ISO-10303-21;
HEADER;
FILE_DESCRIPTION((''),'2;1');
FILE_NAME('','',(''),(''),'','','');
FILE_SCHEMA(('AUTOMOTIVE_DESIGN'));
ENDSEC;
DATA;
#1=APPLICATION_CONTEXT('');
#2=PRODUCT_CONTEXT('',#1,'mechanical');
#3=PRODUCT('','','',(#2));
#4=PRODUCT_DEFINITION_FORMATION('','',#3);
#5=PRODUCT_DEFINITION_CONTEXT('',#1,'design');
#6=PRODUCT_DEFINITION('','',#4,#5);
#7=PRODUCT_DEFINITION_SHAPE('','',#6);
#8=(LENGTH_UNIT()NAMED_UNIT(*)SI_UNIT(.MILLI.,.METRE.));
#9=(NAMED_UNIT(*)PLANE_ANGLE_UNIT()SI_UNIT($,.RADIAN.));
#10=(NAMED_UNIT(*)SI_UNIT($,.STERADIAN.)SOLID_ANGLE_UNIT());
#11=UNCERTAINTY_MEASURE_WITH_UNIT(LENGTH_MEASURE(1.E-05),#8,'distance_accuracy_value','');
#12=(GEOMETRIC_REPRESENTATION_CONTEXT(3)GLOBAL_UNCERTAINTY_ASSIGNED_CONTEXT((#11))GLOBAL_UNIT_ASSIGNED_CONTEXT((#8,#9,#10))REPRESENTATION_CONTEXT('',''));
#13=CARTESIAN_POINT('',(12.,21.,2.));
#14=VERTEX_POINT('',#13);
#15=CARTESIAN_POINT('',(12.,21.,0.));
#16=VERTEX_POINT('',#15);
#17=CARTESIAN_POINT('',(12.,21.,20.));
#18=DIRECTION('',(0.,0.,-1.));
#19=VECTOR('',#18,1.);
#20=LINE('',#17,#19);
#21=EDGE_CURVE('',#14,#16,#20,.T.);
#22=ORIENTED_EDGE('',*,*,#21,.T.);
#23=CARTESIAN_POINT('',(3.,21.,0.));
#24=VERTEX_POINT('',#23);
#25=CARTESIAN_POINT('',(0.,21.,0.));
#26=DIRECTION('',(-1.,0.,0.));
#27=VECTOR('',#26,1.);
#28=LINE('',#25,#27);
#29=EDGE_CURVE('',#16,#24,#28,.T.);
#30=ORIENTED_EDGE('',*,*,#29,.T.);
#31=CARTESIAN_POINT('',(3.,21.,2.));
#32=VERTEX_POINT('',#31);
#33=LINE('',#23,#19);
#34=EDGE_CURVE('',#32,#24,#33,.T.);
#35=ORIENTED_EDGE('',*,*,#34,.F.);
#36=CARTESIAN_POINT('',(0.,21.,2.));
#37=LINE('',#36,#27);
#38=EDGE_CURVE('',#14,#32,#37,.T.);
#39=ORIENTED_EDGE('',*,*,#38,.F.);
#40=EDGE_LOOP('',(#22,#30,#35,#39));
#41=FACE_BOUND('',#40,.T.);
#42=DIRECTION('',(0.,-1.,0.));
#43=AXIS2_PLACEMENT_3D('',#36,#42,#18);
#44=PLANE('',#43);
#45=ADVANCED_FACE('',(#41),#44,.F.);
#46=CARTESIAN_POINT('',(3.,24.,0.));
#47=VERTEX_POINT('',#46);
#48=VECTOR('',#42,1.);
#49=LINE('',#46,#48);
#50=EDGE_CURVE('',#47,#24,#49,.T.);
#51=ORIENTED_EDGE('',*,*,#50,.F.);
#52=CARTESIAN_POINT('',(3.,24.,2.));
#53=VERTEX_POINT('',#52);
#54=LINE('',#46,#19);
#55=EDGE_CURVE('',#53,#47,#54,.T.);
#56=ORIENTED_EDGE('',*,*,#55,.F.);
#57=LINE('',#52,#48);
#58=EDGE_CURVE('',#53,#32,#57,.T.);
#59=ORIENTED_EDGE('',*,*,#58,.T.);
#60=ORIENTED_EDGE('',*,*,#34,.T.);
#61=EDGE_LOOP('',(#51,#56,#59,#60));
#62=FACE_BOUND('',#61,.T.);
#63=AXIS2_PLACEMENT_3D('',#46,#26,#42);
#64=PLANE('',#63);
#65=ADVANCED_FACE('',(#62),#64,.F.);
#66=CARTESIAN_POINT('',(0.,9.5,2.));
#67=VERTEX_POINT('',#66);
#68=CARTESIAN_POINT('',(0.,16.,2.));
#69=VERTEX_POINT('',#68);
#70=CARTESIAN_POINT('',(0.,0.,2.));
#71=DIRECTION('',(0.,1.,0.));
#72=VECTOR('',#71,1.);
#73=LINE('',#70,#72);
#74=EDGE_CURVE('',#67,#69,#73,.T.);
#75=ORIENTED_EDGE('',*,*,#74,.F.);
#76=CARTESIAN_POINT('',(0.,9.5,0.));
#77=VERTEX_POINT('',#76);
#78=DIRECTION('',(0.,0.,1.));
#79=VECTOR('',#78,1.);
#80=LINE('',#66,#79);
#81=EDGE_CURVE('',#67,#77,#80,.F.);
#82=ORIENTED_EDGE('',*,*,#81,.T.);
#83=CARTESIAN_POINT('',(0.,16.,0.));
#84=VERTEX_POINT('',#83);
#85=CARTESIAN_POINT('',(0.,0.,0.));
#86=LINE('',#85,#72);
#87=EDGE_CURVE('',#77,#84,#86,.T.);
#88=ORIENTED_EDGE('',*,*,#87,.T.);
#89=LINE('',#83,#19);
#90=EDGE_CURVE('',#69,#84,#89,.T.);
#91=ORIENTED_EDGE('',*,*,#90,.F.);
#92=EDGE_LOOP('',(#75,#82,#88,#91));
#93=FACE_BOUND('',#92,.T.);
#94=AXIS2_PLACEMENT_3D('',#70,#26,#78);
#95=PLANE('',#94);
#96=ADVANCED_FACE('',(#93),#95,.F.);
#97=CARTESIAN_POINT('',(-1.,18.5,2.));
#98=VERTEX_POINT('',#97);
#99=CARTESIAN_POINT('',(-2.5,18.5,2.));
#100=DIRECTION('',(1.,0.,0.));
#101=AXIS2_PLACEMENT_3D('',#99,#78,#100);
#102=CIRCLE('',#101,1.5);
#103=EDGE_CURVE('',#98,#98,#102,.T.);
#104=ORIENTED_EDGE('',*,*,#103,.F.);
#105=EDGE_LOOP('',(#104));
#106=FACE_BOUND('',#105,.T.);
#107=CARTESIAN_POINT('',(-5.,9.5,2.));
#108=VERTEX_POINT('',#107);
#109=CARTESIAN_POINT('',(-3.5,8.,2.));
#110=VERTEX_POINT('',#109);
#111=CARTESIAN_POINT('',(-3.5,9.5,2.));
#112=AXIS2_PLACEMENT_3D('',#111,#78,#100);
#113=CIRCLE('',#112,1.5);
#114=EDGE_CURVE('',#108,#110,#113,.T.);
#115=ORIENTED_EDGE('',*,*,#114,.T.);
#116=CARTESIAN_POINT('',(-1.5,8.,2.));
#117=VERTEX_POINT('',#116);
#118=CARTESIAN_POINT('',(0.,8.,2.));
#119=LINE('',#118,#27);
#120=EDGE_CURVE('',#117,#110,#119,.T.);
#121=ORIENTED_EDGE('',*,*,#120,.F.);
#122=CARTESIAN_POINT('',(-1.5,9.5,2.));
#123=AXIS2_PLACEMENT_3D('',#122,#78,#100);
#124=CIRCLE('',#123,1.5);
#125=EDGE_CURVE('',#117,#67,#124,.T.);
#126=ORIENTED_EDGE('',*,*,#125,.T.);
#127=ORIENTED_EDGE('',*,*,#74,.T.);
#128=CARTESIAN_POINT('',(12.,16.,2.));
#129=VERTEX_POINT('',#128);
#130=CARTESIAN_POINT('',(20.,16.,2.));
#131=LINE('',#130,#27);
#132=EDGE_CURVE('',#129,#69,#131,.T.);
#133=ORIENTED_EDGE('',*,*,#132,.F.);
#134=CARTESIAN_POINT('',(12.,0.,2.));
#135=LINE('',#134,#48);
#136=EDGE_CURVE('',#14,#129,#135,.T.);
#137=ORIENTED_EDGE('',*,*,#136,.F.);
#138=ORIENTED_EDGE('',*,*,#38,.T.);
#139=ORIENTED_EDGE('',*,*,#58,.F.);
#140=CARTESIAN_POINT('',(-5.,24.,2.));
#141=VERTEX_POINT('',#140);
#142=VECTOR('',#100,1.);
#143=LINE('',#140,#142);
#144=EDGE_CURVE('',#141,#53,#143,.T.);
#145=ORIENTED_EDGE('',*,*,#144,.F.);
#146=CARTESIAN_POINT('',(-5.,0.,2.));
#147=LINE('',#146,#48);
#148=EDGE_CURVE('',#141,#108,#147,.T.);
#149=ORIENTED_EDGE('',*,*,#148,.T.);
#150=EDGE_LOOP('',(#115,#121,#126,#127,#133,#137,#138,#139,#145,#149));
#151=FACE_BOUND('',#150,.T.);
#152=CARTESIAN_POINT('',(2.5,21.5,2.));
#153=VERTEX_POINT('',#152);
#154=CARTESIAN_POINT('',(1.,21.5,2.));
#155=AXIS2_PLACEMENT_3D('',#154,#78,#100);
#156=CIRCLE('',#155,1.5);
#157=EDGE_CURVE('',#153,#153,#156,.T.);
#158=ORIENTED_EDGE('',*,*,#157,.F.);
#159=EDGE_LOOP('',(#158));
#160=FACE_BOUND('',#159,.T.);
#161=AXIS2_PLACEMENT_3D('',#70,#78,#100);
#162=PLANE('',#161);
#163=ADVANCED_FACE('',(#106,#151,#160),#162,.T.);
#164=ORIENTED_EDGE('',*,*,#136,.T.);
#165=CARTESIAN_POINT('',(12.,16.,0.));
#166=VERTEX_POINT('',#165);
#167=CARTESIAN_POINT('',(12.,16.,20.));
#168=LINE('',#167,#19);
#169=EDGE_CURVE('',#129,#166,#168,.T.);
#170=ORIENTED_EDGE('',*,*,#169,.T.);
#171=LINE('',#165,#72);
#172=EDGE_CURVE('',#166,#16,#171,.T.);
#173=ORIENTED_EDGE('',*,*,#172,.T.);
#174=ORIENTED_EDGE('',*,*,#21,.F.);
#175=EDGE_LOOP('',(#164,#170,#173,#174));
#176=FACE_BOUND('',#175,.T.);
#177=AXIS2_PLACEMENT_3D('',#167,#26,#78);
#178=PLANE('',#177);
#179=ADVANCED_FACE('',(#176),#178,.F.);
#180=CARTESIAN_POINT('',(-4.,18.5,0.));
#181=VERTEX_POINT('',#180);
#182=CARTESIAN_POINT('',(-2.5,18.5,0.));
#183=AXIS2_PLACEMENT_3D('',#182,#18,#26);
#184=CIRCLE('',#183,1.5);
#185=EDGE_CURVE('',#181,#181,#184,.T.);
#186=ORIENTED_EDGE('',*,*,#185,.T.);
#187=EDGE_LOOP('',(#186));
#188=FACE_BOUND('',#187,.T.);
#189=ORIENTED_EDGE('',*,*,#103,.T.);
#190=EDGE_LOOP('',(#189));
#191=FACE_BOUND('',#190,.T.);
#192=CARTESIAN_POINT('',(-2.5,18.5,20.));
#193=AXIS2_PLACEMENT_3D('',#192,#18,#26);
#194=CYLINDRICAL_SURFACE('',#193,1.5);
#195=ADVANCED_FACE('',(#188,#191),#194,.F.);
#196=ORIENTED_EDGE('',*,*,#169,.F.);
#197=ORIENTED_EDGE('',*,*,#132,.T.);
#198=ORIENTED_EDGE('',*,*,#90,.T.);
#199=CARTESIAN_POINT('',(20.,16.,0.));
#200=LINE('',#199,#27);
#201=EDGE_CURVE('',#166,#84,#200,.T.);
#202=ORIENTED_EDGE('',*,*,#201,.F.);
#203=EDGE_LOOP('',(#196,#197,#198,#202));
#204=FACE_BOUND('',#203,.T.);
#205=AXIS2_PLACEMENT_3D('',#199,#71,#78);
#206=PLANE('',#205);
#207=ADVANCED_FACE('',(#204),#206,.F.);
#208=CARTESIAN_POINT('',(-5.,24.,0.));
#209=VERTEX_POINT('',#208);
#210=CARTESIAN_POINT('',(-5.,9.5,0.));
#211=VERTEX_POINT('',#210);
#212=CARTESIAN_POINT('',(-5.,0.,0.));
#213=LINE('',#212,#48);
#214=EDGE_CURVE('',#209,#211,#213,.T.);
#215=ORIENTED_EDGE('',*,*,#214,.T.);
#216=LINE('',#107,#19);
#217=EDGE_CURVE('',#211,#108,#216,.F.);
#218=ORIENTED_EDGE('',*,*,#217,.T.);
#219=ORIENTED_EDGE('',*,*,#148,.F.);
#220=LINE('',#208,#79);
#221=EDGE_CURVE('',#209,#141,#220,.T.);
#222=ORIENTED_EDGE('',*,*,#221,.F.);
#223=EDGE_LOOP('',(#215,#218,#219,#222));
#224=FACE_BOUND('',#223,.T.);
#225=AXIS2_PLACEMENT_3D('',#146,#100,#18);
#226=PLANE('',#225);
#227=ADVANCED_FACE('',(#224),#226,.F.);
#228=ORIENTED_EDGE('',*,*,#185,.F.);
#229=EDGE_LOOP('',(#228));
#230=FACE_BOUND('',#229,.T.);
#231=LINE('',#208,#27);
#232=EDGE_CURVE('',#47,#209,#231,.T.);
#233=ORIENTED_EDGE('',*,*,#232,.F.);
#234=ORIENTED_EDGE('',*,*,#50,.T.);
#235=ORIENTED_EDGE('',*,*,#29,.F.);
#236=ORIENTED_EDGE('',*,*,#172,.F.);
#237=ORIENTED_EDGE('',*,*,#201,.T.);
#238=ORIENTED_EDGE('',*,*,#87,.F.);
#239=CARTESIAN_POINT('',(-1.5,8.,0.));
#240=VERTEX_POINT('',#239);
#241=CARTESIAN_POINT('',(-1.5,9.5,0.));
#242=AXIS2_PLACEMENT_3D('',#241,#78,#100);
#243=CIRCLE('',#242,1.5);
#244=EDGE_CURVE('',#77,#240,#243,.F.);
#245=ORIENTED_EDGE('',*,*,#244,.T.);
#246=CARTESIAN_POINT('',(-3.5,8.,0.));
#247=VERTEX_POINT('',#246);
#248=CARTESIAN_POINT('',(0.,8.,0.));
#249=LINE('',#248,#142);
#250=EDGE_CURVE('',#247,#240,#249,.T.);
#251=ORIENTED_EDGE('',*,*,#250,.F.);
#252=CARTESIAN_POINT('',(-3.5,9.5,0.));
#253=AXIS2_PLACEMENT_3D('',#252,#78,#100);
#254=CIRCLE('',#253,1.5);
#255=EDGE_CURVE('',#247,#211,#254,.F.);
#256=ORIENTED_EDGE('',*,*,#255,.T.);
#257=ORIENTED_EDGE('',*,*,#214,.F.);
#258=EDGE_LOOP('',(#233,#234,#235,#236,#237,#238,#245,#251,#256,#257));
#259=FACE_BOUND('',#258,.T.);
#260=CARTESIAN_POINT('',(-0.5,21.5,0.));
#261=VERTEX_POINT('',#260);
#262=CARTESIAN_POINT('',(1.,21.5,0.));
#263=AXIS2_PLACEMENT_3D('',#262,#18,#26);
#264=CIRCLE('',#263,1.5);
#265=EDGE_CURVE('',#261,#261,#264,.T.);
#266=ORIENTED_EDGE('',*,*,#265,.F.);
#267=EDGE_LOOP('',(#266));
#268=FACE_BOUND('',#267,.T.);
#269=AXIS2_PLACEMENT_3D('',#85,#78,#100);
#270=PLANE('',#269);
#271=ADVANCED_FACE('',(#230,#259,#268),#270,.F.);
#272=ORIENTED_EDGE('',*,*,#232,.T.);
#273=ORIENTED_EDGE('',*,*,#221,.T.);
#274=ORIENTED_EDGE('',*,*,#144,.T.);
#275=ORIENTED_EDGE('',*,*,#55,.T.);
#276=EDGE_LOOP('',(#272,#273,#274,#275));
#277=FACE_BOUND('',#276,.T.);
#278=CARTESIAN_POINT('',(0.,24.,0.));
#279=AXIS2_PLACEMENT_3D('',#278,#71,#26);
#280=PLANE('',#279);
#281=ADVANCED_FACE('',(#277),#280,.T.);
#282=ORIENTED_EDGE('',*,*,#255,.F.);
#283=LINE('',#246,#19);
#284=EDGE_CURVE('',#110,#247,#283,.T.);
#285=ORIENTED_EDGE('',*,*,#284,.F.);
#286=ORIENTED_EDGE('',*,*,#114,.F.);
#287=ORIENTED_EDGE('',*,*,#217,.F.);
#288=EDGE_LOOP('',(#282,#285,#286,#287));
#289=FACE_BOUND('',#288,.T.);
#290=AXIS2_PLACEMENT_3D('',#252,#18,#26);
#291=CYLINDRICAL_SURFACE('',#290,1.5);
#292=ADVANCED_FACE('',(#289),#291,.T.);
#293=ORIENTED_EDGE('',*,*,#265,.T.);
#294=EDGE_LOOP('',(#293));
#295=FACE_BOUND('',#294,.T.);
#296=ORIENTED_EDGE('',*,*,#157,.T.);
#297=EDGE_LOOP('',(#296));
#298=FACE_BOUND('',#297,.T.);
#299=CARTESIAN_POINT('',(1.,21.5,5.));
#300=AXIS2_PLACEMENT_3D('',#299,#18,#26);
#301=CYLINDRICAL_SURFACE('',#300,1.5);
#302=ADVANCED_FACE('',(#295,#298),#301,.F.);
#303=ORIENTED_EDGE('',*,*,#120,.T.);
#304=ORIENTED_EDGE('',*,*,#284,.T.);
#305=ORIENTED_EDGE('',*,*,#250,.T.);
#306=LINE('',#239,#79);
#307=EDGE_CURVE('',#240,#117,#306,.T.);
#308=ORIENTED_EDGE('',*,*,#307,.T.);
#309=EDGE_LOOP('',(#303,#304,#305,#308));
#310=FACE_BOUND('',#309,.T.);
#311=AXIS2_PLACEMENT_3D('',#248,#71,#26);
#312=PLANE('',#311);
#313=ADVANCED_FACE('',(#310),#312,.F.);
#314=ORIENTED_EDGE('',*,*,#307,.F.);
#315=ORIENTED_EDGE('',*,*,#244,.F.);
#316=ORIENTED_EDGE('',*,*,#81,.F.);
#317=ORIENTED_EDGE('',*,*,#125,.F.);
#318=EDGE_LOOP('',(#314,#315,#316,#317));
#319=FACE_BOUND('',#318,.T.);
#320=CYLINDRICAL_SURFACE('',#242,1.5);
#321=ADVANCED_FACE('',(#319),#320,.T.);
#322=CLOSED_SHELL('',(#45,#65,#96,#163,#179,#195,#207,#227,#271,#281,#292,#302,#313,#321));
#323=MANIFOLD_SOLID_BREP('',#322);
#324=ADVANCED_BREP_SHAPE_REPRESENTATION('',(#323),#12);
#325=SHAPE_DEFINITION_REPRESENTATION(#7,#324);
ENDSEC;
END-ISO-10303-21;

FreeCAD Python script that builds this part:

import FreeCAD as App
import Part
import Sketcher

V = App.Vector


def edges_at(feature, points):
    """Names of the edges that pass closest to the given points."""
    edges = feature.Shape.Edges
    near = lambda p: min(range(len(edges)), key=lambda i: edges[i].distToShape(Part.Vertex(*p))[0])
    return sorted({f"Edge{near(p) + 1}" for p in points})


def add_polygon(sketch, points):
    """Adds a closed chain of lines whose ends are joined by coincident constraints."""
    first, n = sketch.GeometryCount, len(points)
    for a, b in zip(points, points[1:] + points[:1]):
        sketch.addGeometry(Part.LineSegment(App.Vector(*a, 0), App.Vector(*b, 0)), False)
    for i in range(n):
        sketch.addConstraint(Sketcher.Constraint("Coincident", first + i, 2, first + (i + 1) % n, 1))

doc = App.newDocument("Part")
body = doc.addObject("PartDesign::Body", "Body")

# Sketch on XY plane
sketch1 = body.newObject("Sketcher::SketchObject", "Sketch")
sketch1.AttachmentSupport = (doc.getObject("XY_Plane"), [""])
sketch1.MapMode = "FlatFace"
add_polygon(sketch1, [(-5, 21), (-5, 0), (0, 0), (0, 21)])  # lines 0-3
sketch1.addConstraint(Sketcher.Constraint("Vertical", 0))
sketch1.addConstraint(Sketcher.Constraint("Horizontal", 1))
sketch1.addConstraint(Sketcher.Constraint("Vertical", 2))
sketch1.addConstraint(Sketcher.Constraint("Horizontal", 3))
sketch1.addConstraint(Sketcher.Constraint("Coincident", 1, 2, -1, 1))
sketch1.addConstraint(Sketcher.Constraint("DistanceX", 1, 1, 1, 2, 5.0))
sketch1.addConstraint(Sketcher.Constraint("DistanceY", 0, 2, 0, 1, 21.0))
pad1 = body.newObject("PartDesign::Pad", "Pad")
pad1.Profile = sketch1
pad1.Length = 2

# Sketch on YZ plane
sketch2 = body.newObject("Sketcher::SketchObject", "Sketch001")
sketch2.AttachmentSupport = (doc.getObject("YZ_Plane"), [""])
sketch2.MapMode = "FlatFace"
add_polygon(sketch2, [(21, 2), (16, 2), (16, 0), (21, 0)])  # lines 0-3
sketch2.addConstraint(Sketcher.Constraint("Horizontal", 0))
sketch2.addConstraint(Sketcher.Constraint("Vertical", 1))
sketch2.addConstraint(Sketcher.Constraint("Horizontal", 2))
sketch2.addConstraint(Sketcher.Constraint("Vertical", 3))
sketch2.addConstraint(Sketcher.Constraint("PointOnObject", 1, 2, -1))
sketch2.addConstraint(Sketcher.Constraint("DistanceX", 0, 2, 0, 1, 5.0))
sketch2.addConstraint(Sketcher.Constraint("DistanceY", 1, 2, 1, 1, 2.0))
sketch2.addConstraint(Sketcher.Constraint("DistanceX", -1, 1, 0, 2, 16.0))
pad2 = body.newObject("PartDesign::Pad", "Pad001")
pad2.Profile = sketch2
pad2.Length = 20

# Sketch on XY plane
sketch3 = body.newObject("Sketcher::SketchObject", "Sketch002")
sketch3.AttachmentSupport = (doc.getObject("XY_Plane"), [""])
sketch3.MapMode = "FlatFace"
add_polygon(sketch3, [(20, 21), (20, 16), (12, 16), (12, 21)])  # lines 0-3
sketch3.addConstraint(Sketcher.Constraint("Vertical", 0))
sketch3.addConstraint(Sketcher.Constraint("Horizontal", 1))
sketch3.addConstraint(Sketcher.Constraint("Vertical", 2))
sketch3.addConstraint(Sketcher.Constraint("Horizontal", 3))
sketch3.addConstraint(Sketcher.Constraint("DistanceX", 1, 2, 1, 1, 8.0))
sketch3.addConstraint(Sketcher.Constraint("DistanceY", 0, 2, 0, 1, 5.0))
sketch3.addConstraint(Sketcher.Constraint("DistanceX", -1, 1, 0, 2, 20.0))
sketch3.addConstraint(Sketcher.Constraint("DistanceY", -1, 1, 0, 2, 16.0))
pocket1 = body.newObject("PartDesign::Pocket", "Pocket")
pocket1.Profile = sketch3
pocket1.Length = 20
pocket1.Reversed = True

# Sketch on XY plane
sketch4 = body.newObject("Sketcher::SketchObject", "Sketch003")
sketch4.AttachmentSupport = (doc.getObject("XY_Plane"), [""])
sketch4.MapMode = "FlatFace"
sketch4.addGeometry(Part.Circle(V(-2.5, 18.5, 0), V(0, 0, 1), 1.5), False)
sketch4.addConstraint(Sketcher.Constraint("Diameter", 0, 3.0))
sketch4.addConstraint(Sketcher.Constraint("DistanceX", 0, 3, -1, 1, 2.5))
sketch4.addConstraint(Sketcher.Constraint("DistanceY", -1, 1, 0, 3, 18.5))
pocket2 = body.newObject("PartDesign::Pocket", "Pocket001")
pocket2.Profile = sketch4
pocket2.Length = 20
pocket2.Reversed = True

# Sketch on XZ plane
sketch5 = body.newObject("Sketcher::SketchObject", "Sketch004")
sketch5.AttachmentSupport = (doc.getObject("XZ_Plane"), [""])
sketch5.MapMode = "FlatFace"
add_polygon(sketch5, [(-5, 2), (-5, 0), (0, 0), (0, 2)])  # lines 0-3
sketch5.addConstraint(Sketcher.Constraint("Vertical", 0))
sketch5.addConstraint(Sketcher.Constraint("Horizontal", 1))
sketch5.addConstraint(Sketcher.Constraint("Vertical", 2))
sketch5.addConstraint(Sketcher.Constraint("Horizontal", 3))
sketch5.addConstraint(Sketcher.Constraint("Coincident", 1, 2, -1, 1))
sketch5.addConstraint(Sketcher.Constraint("DistanceX", 1, 1, 1, 2, 5.0))
sketch5.addConstraint(Sketcher.Constraint("DistanceY", 0, 2, 0, 1, 2.0))
pocket3 = body.newObject("PartDesign::Pocket", "Pocket002")
pocket3.Profile = sketch5
pocket3.Length = 8
doc.recompute()

fillet = body.newObject("PartDesign::Fillet", "Fillet")
fillet.Base = (pocket3, edges_at(pocket3, [(0, 8, 1), (-5, 8, 1)]))
fillet.Radius = 1.5

# Sketch on XZ plane
sketch6 = body.newObject("Sketcher::SketchObject", "Sketch005")
sketch6.AttachmentSupport = (doc.getObject("XZ_Plane"), [""])
sketch6.MapMode = "FlatFace"
sketch6.AttachmentOffset = App.Placement(V(0, 0, -21), App.Rotation())
add_polygon(sketch6, [(-5, 0), (-5, 2), (3, 2), (3, 0)])  # lines 0-3
sketch6.addConstraint(Sketcher.Constraint("Vertical", 0))
sketch6.addConstraint(Sketcher.Constraint("Horizontal", 1))
sketch6.addConstraint(Sketcher.Constraint("Vertical", 2))
sketch6.addConstraint(Sketcher.Constraint("Horizontal", 3))
sketch6.addConstraint(Sketcher.Constraint("PointOnObject", 2, 2, -1))
sketch6.addConstraint(Sketcher.Constraint("DistanceX", 1, 1, 1, 2, 8.0))
sketch6.addConstraint(Sketcher.Constraint("DistanceY", 0, 1, 0, 2, 2.0))
sketch6.addConstraint(Sketcher.Constraint("DistanceX", 0, 2, -1, 1, 5.0))
pad3 = body.newObject("PartDesign::Pad", "Pad002")
pad3.Profile = sketch6
pad3.Length = 3
pad3.Reversed = True

# Sketch on XY plane
sketch7 = body.newObject("Sketcher::SketchObject", "Sketch006")
sketch7.AttachmentSupport = (doc.getObject("XY_Plane"), [""])
sketch7.MapMode = "FlatFace"
sketch7.addGeometry(Part.Circle(V(1, 21.5, 0), V(0, 0, 1), 1.5), False)
sketch7.addConstraint(Sketcher.Constraint("Diameter", 0, 3.0))
sketch7.addConstraint(Sketcher.Constraint("DistanceX", -1, 1, 0, 3, 1.0))
sketch7.addConstraint(Sketcher.Constraint("DistanceY", -1, 1, 0, 3, 21.5))
pocket4 = body.newObject("PartDesign::Pocket", "Pocket003")
pocket4.Profile = sketch7
pocket4.Length = 5
pocket4.Reversed = True

doc.recompute()
